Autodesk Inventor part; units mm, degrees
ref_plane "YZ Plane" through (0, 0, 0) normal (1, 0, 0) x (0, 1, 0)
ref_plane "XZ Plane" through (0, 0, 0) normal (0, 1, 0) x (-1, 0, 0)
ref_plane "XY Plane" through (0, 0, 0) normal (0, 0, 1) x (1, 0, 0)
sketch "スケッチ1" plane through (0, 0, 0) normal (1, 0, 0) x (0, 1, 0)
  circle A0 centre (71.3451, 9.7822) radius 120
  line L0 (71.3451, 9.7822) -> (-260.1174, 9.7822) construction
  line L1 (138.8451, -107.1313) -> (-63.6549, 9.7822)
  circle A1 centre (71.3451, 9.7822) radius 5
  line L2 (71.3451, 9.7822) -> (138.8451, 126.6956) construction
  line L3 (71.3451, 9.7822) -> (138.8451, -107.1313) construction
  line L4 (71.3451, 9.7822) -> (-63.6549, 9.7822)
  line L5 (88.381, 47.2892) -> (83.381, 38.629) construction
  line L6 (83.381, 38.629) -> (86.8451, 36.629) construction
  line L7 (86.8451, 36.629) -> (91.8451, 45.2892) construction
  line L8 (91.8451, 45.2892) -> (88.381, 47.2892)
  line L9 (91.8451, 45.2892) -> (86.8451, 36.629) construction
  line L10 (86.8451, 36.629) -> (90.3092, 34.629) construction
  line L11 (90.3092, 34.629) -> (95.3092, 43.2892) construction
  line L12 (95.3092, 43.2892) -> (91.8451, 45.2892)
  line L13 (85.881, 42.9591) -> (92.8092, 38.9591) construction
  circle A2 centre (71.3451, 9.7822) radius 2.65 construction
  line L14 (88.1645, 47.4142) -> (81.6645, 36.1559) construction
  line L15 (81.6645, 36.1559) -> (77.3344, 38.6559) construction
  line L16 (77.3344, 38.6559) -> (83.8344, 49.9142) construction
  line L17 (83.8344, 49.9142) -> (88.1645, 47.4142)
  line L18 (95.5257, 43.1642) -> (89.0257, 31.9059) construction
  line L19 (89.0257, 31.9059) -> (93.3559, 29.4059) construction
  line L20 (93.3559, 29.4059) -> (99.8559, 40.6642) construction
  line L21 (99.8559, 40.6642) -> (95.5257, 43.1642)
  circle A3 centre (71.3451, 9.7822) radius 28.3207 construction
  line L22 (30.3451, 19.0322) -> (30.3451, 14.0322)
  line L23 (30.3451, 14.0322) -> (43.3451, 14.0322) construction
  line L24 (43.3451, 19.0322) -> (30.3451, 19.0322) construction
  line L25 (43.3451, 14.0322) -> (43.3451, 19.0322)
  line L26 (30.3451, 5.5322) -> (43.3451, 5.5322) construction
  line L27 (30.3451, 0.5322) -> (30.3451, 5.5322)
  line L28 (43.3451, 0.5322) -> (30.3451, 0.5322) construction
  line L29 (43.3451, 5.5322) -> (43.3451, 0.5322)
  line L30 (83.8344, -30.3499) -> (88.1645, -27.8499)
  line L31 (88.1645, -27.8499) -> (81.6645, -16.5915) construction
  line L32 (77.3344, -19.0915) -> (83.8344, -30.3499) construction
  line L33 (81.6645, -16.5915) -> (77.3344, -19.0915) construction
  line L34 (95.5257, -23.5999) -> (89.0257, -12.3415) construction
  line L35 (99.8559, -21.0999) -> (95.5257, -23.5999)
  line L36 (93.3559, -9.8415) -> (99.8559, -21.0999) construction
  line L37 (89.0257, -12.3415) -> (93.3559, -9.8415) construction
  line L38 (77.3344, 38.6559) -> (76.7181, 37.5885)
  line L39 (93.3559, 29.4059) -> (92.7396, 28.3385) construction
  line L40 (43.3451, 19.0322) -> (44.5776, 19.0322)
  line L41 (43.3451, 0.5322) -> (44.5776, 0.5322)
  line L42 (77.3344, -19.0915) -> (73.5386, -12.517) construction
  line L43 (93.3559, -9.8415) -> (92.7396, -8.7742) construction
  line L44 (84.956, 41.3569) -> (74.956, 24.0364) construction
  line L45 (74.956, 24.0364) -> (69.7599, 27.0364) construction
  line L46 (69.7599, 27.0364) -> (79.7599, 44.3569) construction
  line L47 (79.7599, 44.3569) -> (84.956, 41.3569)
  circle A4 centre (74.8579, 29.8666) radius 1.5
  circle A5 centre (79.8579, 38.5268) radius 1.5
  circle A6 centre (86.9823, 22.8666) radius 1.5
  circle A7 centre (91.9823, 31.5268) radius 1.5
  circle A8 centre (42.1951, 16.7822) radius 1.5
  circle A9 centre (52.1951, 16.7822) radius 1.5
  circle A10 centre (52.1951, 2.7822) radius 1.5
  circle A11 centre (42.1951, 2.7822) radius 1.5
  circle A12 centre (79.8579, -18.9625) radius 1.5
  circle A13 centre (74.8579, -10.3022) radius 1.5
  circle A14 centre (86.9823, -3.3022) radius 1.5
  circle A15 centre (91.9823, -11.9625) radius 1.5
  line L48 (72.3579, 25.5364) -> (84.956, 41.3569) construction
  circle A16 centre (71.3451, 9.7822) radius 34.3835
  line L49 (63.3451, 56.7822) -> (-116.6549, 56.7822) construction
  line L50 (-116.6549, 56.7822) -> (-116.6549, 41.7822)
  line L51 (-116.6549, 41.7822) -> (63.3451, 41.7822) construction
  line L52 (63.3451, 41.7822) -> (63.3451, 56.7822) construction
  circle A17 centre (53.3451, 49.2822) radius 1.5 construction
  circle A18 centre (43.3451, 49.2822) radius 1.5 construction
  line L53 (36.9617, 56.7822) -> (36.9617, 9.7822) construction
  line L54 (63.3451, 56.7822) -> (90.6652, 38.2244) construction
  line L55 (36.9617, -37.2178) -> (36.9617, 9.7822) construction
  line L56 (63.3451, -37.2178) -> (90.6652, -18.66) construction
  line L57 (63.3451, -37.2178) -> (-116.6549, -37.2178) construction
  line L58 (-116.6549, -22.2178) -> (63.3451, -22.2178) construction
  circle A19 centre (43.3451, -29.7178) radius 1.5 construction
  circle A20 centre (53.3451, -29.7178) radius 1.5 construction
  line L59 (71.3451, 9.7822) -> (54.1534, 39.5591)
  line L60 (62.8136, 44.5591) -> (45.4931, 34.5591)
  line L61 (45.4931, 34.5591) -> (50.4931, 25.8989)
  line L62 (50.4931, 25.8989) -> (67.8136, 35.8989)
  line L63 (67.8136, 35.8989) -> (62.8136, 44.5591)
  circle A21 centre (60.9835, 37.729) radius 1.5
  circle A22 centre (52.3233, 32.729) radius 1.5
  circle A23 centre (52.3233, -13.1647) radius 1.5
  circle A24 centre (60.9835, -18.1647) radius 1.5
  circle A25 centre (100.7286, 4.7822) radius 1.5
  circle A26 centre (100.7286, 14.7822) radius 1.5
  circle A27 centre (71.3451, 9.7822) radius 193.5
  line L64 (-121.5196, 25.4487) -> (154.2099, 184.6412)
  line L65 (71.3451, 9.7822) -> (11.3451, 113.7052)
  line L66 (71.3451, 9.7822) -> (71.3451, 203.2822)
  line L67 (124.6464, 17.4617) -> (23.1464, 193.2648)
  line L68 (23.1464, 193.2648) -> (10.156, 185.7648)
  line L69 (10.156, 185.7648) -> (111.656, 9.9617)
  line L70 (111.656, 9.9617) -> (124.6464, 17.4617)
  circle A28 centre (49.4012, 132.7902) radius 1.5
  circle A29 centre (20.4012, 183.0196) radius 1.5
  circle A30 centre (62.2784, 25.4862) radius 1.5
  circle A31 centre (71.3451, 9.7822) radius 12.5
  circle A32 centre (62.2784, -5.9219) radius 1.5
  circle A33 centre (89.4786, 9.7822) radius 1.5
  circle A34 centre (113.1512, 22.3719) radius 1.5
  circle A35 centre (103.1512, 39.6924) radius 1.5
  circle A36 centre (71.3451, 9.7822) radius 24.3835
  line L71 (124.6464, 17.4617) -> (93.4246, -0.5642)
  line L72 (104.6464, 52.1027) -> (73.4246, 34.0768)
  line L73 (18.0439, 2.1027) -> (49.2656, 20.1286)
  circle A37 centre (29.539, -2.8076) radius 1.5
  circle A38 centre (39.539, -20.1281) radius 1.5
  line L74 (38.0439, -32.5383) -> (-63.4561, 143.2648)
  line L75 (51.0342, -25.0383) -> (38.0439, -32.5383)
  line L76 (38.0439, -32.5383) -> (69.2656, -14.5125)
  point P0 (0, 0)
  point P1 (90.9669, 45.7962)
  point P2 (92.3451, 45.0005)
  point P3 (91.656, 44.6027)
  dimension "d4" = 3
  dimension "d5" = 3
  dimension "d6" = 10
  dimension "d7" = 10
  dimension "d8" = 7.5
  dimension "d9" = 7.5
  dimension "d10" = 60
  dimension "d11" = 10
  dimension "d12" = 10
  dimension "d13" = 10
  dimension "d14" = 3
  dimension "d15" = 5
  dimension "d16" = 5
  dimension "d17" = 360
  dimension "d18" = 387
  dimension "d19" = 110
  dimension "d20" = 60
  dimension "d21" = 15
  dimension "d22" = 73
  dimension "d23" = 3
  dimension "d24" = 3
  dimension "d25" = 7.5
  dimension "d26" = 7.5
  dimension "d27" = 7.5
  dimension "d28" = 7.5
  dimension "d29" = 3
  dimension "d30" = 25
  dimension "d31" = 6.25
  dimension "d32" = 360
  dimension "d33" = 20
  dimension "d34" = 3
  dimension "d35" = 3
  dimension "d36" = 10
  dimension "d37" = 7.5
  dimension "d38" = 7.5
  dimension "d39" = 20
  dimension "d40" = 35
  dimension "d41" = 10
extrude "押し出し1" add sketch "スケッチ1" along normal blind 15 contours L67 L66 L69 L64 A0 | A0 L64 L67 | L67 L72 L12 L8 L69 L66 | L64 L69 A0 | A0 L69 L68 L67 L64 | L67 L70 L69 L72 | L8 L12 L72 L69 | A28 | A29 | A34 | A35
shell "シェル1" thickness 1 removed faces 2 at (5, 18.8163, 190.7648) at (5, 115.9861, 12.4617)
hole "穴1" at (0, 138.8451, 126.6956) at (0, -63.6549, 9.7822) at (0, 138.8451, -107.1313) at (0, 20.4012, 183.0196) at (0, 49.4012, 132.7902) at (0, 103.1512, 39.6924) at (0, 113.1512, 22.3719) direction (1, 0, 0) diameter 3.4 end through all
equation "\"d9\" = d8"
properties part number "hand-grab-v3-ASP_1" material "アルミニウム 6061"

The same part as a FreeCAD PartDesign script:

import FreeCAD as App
import Part
import Sketcher

V = App.Vector
Q = App.Units.Quantity


def faces_at(feature, points):
    """Names of the faces that lie closest to the given points."""
    faces = feature.Shape.Faces
    near = lambda p: min(range(len(faces)), key=lambda i: faces[i].distToShape(Part.Vertex(*p))[0])
    return sorted({f"Face{near(p) + 1}" for p in points})


def add_polygon(sketch, points):
    """Adds a closed chain of lines whose ends are joined by coincident constraints."""
    first, n = sketch.GeometryCount, len(points)
    for a, b in zip(points, points[1:] + points[:1]):
        sketch.addGeometry(Part.LineSegment(App.Vector(*a, 0), App.Vector(*b, 0)), False)
    for i in range(n):
        sketch.addConstraint(Sketcher.Constraint("Coincident", first + i, 2, first + (i + 1) % n, 1))

doc = App.newDocument("Part")
params = doc.addObject("Spreadsheet::Sheet", "Params")
for row, (alias, value) in enumerate([
    ("sketch1_length", "15 mm"),
    ("sketch1_length2", "203 mm"),
    ("pad1_length", "15 mm"),
    ("thickness_wall", "1 mm"),
    ("sketch2_diameter", "3.4 mm"),
    ("hole_diameter", "3.4 mm"),
], start=1):
    params.set(f"A{row}", alias)
    params.set(f"B{row}", "=" + value)
    params.setAlias(f"B{row}", alias)

body = doc.addObject("PartDesign::Body", "Body")

sketch1 = body.newObject("Sketcher::SketchObject", "Sketch")
sketch1.AttachmentSupport = (doc.getObject("YZ_Plane"), [""])
sketch1.MapMode = "FlatFace"
add_polygon(sketch1, [(23, 193), (10, 186), (112, 10), (125, 17)])
sketch1.addConstraint([
    Sketcher.Constraint("Perpendicular", 0, 1),
    Sketcher.Constraint("Perpendicular", 1, 2),
    Sketcher.Constraint("Perpendicular", 2, 3),
    Sketcher.Constraint("Angle", 1, Q("-60 deg")),
    Sketcher.Constraint("Distance", 0, Q("15 mm")),
    Sketcher.Constraint("Distance", 1, Q("203 mm")),
    Sketcher.Constraint("DistanceX", -1, 1, 0, 2, Q("10.156 mm")),
    Sketcher.Constraint("DistanceY", -1, 1, 0, 2, Q("185.7648 mm")),
])
sketch1.setExpression("Constraints[8]", "Params.sketch1_length")
sketch1.setExpression("Constraints[9]", "Params.sketch1_length2")
pad1 = body.newObject("PartDesign::Pad", "Pad")
pad1.Profile = sketch1
pad1.setExpression("Length", "Params.pad1_length")
doc.recompute()

thickness = body.newObject("PartDesign::Thickness", "Thickness")
thickness.Base = (pad1, faces_at(pad1, [(5, 18.816, 190.765), (5, 115.986, 12.462)]))
thickness.setExpression("Value", "Params.thickness_wall")
thickness.Reversed = True
thickness.Join = "Intersection"

sketch2 = body.newObject("Sketcher::SketchObject", "Sketch001")
sketch2.AttachmentSupport = (doc.getObject("YZ_Plane"), [""])
sketch2.MapMode = "FlatFace"
sketch2.addGeometry([
    Part.Circle(V(138.8, 126.7, 0), V(0, 0, 1), 1.7),
    Part.Circle(V(-63.7, 9.8, 0), V(0, 0, 1), 1.7),
    Part.Circle(V(138.8, -107.1, 0), V(0, 0, 1), 1.7),
    Part.Circle(V(20.4, 183, 0), V(0, 0, 1), 1.7),
    Part.Circle(V(49.4, 132.8, 0), V(0, 0, 1), 1.7),
    Part.Circle(V(103.2, 39.7, 0), V(0, 0, 1), 1.7),
    Part.Circle(V(113.2, 22.4, 0), V(0, 0, 1), 1.7),
], False)
sketch2.addConstraint([
    Sketcher.Constraint("Equal", 0, 1),
    Sketcher.Constraint("Equal", 1, 2),
    Sketcher.Constraint("Equal", 2, 3),
    Sketcher.Constraint("Equal", 3, 4),
    Sketcher.Constraint("Equal", 4, 5),
    Sketcher.Constraint("Equal", 5, 6),
    Sketcher.Constraint("Vertical", 0, 3, 2, 3),
    Sketcher.Constraint("Diameter", 0, Q("3.4 mm")),
    Sketcher.Constraint("DistanceX", 3, 3, 4, 3, Q("29 mm")),
    Sketcher.Constraint("DistanceX", 5, 3, 6, 3, Q("10 mm")),
    Sketcher.Constraint("DistanceX", 1, 3, 0, 3, Q("202.5 mm")),
    Sketcher.Constraint("DistanceX", 4, 3, 5, 3, Q("53.75 mm")),
    Sketcher.Constraint("DistanceX", -1, 1, 0, 3, Q("138.845 mm")),
    Sketcher.Constraint("DistanceY", -1, 1, 6, 3, Q("22.372 mm")),
    Sketcher.Constraint("DistanceY", 2, 3, 0, 3, Q("233.827 mm")),
    Sketcher.Constraint("DistanceX", 3, 3, 0, 3, Q("118.444 mm")),
    Sketcher.Constraint("DistanceY", 0, 3, 3, 3, Q("56.324 mm")),
    Sketcher.Constraint("DistanceY", 1, 3, 4, 3, Q("123.008 mm")),
    Sketcher.Constraint("DistanceY", -1, 1, 0, 3, Q("126.6956 mm")),
    Sketcher.Constraint("DistanceY", -1, 1, 1, 3, Q("9.7822 mm")),
    Sketcher.Constraint("DistanceY", -1, 1, 5, 3, Q("39.6924 mm")),
])
sketch2.setExpression("Constraints[7]", "Params.sketch2_diameter")
doc.recompute()
hole = body.newObject("PartDesign::Hole", "Hole")
hole.Profile = sketch2
hole.ThreadType = "None"
hole.setExpression("Diameter", "Params.hole_diameter")
hole.DepthType = "ThroughAll"
hole.Reversed = True

doc.recompute()
